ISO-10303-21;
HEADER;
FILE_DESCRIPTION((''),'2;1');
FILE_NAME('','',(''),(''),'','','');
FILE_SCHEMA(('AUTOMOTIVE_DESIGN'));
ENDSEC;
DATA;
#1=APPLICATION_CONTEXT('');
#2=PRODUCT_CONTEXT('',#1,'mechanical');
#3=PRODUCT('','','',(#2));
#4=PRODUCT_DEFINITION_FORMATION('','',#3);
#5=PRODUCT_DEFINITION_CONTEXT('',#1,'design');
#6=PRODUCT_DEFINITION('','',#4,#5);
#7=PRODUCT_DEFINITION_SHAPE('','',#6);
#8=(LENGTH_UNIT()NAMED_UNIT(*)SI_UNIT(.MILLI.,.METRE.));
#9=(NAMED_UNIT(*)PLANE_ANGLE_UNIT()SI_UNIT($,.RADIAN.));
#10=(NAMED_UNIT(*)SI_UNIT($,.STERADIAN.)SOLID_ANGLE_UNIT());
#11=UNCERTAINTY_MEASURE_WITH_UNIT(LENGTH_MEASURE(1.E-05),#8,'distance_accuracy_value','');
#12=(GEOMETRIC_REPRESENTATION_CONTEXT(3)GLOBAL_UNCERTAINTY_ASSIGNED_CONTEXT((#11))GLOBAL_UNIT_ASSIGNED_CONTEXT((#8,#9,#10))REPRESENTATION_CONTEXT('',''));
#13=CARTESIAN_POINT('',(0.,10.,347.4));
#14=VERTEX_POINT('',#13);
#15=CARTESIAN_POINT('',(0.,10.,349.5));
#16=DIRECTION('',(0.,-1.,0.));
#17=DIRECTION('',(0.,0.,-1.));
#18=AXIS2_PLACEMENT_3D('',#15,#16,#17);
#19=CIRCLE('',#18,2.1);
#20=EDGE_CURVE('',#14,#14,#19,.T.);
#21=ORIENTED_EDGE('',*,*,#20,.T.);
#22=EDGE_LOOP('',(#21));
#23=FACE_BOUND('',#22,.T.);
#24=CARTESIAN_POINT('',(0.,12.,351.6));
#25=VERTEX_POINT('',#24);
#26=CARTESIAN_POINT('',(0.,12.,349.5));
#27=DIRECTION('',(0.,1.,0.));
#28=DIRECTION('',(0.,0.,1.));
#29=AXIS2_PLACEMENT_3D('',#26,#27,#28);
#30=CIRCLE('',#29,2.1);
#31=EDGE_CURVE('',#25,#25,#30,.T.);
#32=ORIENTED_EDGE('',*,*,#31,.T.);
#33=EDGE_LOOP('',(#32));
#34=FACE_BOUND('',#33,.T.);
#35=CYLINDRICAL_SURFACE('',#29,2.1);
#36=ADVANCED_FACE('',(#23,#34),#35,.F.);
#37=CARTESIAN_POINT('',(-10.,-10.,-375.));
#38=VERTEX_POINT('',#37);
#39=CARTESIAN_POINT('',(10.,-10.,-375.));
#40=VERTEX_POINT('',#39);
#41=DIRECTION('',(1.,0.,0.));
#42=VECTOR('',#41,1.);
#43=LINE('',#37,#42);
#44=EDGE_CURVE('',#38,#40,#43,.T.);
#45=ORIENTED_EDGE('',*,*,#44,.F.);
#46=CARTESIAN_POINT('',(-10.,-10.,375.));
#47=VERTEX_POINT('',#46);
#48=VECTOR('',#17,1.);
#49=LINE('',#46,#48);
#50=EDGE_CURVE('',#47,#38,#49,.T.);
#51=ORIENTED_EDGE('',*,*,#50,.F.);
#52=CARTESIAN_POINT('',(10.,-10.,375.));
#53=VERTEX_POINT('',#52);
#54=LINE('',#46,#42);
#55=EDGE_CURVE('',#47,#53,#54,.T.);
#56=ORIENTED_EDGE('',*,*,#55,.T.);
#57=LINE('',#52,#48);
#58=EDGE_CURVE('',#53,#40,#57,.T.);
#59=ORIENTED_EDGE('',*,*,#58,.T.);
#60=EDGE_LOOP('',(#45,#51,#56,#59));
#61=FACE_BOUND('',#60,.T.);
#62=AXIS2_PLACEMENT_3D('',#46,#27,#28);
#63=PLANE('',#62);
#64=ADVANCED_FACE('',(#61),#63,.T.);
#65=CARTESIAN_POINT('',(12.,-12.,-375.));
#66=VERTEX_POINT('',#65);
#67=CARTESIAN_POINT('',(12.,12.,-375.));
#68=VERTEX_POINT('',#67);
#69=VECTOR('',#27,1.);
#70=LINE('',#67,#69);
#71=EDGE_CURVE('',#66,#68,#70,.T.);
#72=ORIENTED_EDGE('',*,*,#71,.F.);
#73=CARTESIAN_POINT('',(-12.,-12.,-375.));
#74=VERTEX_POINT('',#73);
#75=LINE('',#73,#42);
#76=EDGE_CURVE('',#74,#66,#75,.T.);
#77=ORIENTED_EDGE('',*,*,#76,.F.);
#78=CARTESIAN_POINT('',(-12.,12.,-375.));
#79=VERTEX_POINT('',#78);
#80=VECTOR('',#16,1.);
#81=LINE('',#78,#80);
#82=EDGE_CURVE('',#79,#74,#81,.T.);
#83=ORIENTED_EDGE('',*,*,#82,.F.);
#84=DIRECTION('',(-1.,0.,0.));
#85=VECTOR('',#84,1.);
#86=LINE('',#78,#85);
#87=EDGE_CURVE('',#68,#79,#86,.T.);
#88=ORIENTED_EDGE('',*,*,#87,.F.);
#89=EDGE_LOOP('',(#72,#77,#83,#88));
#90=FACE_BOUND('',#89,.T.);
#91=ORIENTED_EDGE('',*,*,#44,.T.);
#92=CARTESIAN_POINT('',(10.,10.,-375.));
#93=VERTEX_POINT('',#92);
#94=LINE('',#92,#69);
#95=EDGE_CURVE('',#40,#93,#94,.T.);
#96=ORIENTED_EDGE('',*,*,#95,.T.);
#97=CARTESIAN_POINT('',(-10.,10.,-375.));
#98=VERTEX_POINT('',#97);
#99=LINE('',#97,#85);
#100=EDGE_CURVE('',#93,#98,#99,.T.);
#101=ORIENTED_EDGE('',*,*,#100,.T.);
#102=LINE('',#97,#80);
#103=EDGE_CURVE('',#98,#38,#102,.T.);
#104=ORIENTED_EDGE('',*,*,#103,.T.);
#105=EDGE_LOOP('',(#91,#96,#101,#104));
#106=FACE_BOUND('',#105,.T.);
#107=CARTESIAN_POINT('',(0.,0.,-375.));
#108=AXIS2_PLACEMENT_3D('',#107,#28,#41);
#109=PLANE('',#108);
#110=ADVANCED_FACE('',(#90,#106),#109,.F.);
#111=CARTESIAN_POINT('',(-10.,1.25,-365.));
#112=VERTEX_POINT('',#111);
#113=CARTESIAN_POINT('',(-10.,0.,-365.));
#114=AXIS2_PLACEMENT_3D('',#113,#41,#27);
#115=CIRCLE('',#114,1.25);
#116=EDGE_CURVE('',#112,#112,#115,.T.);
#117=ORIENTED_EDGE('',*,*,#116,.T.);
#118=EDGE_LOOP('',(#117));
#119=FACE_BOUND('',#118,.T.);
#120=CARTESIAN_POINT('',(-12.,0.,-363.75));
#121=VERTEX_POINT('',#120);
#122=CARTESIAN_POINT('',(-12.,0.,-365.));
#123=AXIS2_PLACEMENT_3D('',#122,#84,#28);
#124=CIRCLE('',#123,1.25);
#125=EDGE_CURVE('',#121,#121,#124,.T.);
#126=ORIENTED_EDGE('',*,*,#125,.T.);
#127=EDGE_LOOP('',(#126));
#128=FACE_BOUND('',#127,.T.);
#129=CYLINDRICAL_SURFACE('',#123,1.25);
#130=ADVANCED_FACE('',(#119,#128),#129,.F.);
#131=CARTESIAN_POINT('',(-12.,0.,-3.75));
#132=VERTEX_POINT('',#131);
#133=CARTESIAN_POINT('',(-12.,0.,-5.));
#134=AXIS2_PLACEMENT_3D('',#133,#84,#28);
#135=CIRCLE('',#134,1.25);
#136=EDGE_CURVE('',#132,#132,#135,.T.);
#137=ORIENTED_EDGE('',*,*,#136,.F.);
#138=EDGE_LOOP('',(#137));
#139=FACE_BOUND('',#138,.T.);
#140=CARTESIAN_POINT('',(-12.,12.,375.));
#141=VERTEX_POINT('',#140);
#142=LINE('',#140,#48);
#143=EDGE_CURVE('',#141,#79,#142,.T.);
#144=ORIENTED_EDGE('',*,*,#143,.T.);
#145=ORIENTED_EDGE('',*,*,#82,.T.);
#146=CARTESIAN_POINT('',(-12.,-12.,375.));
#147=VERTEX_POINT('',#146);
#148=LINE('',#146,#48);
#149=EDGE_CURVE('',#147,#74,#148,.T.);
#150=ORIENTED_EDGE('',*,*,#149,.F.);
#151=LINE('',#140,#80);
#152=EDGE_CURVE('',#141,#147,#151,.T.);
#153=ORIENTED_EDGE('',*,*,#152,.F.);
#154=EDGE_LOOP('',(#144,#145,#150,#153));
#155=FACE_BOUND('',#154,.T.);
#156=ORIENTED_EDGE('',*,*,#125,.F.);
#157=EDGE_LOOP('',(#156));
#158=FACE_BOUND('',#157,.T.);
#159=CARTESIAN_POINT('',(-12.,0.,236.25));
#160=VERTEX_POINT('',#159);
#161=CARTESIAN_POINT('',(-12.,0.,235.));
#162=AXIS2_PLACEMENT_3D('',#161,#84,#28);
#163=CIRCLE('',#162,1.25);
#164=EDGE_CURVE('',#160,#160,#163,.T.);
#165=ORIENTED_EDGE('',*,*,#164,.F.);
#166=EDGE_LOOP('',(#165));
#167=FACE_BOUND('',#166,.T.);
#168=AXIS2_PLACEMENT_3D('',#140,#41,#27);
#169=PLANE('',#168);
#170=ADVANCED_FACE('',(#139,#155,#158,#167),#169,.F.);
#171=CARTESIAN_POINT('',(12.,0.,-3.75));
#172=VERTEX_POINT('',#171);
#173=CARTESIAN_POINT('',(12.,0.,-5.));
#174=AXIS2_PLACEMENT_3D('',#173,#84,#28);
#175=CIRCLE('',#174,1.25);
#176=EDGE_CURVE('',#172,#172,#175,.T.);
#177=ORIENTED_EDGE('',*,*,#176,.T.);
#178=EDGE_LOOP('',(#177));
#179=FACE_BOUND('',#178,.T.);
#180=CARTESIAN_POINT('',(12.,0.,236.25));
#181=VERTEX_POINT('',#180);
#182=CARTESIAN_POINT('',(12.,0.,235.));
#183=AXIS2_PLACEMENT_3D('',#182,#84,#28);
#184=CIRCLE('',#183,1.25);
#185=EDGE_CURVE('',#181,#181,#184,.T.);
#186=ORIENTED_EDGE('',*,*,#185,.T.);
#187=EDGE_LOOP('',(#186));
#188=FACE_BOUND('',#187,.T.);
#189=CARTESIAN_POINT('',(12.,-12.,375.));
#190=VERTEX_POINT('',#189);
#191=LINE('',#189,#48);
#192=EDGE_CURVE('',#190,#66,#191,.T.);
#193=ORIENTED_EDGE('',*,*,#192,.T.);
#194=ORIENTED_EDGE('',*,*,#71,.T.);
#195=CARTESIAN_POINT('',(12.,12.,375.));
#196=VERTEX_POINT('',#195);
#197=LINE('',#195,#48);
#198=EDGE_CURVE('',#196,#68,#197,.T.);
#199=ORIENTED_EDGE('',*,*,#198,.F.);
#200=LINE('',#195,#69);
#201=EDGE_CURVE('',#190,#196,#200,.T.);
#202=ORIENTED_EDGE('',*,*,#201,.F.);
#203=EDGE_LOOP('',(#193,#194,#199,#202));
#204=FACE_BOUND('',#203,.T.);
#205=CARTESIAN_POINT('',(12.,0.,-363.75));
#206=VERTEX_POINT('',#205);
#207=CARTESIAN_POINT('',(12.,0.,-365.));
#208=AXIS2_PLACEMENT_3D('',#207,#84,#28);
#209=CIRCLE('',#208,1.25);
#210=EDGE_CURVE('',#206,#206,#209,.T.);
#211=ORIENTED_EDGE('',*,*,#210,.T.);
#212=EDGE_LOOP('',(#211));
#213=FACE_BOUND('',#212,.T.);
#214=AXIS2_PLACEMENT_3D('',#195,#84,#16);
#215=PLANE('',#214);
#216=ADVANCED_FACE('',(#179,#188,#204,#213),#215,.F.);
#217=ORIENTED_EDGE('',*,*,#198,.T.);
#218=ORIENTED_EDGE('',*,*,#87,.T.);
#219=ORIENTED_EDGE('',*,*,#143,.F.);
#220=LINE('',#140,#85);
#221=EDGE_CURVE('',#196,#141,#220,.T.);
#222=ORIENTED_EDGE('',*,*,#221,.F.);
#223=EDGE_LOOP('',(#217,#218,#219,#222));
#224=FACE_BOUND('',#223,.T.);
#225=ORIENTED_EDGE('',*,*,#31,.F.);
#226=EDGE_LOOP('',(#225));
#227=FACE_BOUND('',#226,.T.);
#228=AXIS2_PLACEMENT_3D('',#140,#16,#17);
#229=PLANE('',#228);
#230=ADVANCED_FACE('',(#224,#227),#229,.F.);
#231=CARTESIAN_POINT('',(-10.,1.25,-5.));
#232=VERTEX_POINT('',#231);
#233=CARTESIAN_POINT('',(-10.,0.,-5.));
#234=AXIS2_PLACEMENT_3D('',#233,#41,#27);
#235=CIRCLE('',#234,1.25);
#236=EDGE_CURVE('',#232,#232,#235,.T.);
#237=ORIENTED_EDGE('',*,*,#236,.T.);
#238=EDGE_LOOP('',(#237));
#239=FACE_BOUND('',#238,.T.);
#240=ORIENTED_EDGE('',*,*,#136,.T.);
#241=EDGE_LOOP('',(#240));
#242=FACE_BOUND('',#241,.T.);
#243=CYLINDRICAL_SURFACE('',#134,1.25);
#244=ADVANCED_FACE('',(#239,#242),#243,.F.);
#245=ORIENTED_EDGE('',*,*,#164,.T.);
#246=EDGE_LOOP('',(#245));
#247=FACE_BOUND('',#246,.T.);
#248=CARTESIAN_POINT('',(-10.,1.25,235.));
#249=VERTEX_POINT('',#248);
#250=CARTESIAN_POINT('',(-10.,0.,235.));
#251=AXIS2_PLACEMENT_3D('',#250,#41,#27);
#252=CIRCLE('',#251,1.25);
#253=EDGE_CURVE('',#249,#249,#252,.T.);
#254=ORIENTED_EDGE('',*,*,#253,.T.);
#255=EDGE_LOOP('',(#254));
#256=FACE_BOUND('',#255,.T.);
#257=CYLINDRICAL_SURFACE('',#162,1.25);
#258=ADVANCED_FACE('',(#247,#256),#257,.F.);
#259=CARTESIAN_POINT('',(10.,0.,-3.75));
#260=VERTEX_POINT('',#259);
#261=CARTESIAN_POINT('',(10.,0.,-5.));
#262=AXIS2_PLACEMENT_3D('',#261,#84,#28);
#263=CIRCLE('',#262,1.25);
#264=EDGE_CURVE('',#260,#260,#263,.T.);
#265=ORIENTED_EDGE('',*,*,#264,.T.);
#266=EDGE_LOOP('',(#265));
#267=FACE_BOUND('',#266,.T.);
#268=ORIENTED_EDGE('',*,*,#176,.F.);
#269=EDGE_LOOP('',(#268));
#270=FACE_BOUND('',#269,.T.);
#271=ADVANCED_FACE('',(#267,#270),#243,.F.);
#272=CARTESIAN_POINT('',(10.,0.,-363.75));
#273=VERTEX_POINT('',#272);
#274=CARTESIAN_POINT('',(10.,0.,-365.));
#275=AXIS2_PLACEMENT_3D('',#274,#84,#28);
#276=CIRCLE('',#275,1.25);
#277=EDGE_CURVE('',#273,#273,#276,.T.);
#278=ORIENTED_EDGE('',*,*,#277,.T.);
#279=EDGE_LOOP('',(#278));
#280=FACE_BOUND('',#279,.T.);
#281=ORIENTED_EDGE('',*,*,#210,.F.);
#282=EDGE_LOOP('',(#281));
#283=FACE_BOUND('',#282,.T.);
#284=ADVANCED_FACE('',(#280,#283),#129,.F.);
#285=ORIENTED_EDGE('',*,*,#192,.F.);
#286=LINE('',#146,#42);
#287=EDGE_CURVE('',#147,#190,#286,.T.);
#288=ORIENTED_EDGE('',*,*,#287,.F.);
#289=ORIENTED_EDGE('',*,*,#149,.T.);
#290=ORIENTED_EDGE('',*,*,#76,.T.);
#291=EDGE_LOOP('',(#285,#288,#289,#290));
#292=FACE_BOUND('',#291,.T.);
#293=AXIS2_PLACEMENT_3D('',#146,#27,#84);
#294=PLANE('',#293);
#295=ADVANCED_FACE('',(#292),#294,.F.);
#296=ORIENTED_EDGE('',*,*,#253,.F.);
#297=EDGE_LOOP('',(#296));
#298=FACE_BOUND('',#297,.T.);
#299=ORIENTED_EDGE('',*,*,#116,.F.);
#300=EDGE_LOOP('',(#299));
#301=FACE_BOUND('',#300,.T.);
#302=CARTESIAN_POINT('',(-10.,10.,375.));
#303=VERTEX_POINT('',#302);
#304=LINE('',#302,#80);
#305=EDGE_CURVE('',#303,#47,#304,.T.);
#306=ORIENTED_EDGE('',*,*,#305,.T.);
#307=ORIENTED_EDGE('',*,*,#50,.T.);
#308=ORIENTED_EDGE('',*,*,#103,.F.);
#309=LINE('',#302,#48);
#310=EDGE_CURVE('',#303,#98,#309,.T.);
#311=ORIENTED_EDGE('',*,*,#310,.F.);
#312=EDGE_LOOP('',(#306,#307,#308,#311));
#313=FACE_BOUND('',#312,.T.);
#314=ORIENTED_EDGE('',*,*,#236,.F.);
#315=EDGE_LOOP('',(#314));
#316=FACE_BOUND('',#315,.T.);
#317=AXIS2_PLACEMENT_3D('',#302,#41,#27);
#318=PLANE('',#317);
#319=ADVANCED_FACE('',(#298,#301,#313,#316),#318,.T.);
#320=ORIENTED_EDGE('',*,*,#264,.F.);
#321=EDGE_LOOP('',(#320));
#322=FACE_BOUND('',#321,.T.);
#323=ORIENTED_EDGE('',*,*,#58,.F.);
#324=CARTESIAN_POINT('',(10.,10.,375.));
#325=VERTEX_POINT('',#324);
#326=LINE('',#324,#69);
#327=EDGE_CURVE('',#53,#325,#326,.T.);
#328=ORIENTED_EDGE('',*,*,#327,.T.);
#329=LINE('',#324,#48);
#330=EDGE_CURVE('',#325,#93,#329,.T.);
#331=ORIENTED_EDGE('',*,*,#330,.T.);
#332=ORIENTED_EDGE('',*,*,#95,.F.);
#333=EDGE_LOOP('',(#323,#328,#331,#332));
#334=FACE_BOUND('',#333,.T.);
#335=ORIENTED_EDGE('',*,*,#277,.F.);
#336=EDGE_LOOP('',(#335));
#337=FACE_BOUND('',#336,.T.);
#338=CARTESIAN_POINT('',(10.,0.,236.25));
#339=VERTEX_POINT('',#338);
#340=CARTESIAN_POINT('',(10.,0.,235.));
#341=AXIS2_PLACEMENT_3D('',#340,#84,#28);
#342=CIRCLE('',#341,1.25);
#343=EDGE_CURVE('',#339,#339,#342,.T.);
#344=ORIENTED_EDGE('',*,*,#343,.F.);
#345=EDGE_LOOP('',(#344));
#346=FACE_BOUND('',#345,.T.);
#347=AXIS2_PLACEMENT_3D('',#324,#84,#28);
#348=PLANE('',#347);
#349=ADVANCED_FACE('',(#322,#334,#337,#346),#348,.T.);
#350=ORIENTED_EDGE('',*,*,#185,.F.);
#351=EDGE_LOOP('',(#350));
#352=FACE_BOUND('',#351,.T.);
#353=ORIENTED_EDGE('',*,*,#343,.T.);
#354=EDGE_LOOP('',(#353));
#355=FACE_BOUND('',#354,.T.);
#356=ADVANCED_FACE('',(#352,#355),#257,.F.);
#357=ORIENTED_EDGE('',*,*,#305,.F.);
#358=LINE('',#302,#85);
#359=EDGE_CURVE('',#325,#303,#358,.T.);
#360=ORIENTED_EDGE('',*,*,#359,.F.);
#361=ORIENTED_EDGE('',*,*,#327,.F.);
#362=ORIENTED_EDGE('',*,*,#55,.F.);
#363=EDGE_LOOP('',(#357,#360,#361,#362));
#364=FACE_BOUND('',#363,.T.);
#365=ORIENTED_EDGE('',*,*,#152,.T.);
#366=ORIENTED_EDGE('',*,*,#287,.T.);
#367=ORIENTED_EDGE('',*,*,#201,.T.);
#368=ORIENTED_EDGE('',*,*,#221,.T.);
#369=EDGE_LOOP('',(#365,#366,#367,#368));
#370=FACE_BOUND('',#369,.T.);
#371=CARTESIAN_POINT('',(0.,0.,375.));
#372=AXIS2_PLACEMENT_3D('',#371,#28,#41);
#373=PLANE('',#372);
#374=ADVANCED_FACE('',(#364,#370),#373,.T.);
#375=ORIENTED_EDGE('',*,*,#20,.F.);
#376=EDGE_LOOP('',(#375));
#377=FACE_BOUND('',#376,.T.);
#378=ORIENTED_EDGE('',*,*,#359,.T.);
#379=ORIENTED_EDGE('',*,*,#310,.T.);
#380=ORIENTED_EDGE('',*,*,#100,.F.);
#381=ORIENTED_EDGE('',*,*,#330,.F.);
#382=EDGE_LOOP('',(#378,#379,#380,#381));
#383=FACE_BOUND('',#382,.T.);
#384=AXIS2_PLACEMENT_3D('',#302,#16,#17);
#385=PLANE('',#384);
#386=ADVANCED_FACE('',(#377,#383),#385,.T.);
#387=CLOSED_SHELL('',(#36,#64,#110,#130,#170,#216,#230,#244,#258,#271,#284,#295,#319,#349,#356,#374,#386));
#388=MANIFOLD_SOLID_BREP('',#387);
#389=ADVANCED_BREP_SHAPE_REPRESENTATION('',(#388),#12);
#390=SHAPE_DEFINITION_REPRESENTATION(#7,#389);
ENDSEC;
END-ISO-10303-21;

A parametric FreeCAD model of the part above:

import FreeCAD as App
import Part
import Sketcher
from FreeCAD import Vector
Q = App.Units.Quantity

doc = App.newDocument("Part")
body = doc.addObject("PartDesign::Body", "Body")

# Sketch on XY plane
sketch1 = body.newObject("Sketcher::SketchObject", "Sketch")
sketch1.AttachmentSupport = (doc.getObject("XY_Plane"), [""])
sketch1.MapMode = "FlatFace"
sketch1.addGeometry(Part.LineSegment(Vector(-12, 12, 0), Vector(-12, -12, 0)), False)
sketch1.addGeometry(Part.LineSegment(Vector(-12, -12, 0), Vector(12, -12, 0)), False)
sketch1.addGeometry(Part.LineSegment(Vector(12, -12, 0), Vector(12, 12, 0)), False)
sketch1.addGeometry(Part.LineSegment(Vector(12, 12, 0), Vector(-12, 12, 0)), False)
sketch1.addGeometry(Part.LineSegment(Vector(10, -10, 0), Vector(-10, -10, 0)), False)
sketch1.addGeometry(Part.LineSegment(Vector(-10, -10, 0), Vector(-10, 10, 0)), False)
sketch1.addGeometry(Part.LineSegment(Vector(-10, 10, 0), Vector(10, 10, 0)), False)
sketch1.addGeometry(Part.LineSegment(Vector(10, 10, 0), Vector(10, -10, 0)), False)
sketch1.addConstraint(Sketcher.Constraint("Coincident", 0, 2, 1, 1))
sketch1.addConstraint(Sketcher.Constraint("Coincident", 1, 2, 2, 1))
sketch1.addConstraint(Sketcher.Constraint("Coincident", 2, 2, 3, 1))
sketch1.addConstraint(Sketcher.Constraint("Coincident", 3, 2, 0, 1))
sketch1.addConstraint(Sketcher.Constraint("Coincident", 4, 2, 5, 1))
sketch1.addConstraint(Sketcher.Constraint("Coincident", 5, 2, 6, 1))
sketch1.addConstraint(Sketcher.Constraint("Coincident", 6, 2, 7, 1))
sketch1.addConstraint(Sketcher.Constraint("Coincident", 7, 2, 4, 1))
sketch1.addConstraint(Sketcher.Constraint("Vertical", 0))
sketch1.addConstraint(Sketcher.Constraint("Horizontal", 1))
sketch1.addConstraint(Sketcher.Constraint("Vertical", 2))
sketch1.addConstraint(Sketcher.Constraint("Horizontal", 3))
sketch1.addConstraint(Sketcher.Constraint("Horizontal", 4))
sketch1.addConstraint(Sketcher.Constraint("Vertical", 5))
sketch1.addConstraint(Sketcher.Constraint("Horizontal", 6))
sketch1.addConstraint(Sketcher.Constraint("Vertical", 7))
sketch1.addConstraint(Sketcher.Constraint("Symmetric", 0, 2, 2, 2, -1, 1))
sketch1.addConstraint(Sketcher.Constraint("Symmetric", 4, 2, 6, 2, -1, 1))
sketch1.addConstraint(Sketcher.Constraint("Equal", 3, 0))
sketch1.addConstraint(Sketcher.Constraint("Equal", 6, 5))
sketch1.addConstraint(Sketcher.Constraint("DistanceX", 1, 1, 1, 2, Q("24 mm")))
sketch1.addConstraint(Sketcher.Constraint("DistanceX", 4, 2, 4, 1, Q("20 mm")))
pad1 = body.newObject("PartDesign::Pad", "Pad")
pad1.Profile = sketch1
pad1.Length = 750
pad1.Midplane = True

# Sketch on YZ plane
sketch2 = body.newObject("Sketcher::SketchObject", "Sketch001")
sketch2.AttachmentSupport = (doc.getObject("YZ_Plane"), [""])
sketch2.MapMode = "FlatFace"
sketch2.AttachmentOffset = App.Placement(Vector(0, 0, -12), App.Rotation())
sketch2.addGeometry(Part.Circle(Vector(0, -365, 0), Vector(0, 0, 1), 1.25), False)
sketch2.addGeometry(Part.Circle(Vector(0, -5, 0), Vector(0, 0, 1), 1.25), False)
sketch2.addGeometry(Part.Circle(Vector(0, 235, 0), Vector(0, 0, 1), 1.25), False)
sketch2.addConstraint(Sketcher.Constraint("Equal", 0, 1))
sketch2.addConstraint(Sketcher.Constraint("Equal", 1, 2))
sketch2.addConstraint(Sketcher.Constraint("PointOnObject", 0, 3, -2))
sketch2.addConstraint(Sketcher.Constraint("PointOnObject", 1, 3, -2))
sketch2.addConstraint(Sketcher.Constraint("PointOnObject", 2, 3, -2))
sketch2.addConstraint(Sketcher.Constraint("Diameter", 0, Q("2.5 mm")))
sketch2.addConstraint(Sketcher.Constraint("DistanceY", 0, 3, -1, 1, Q("365 mm")))
sketch2.addConstraint(Sketcher.Constraint("DistanceY", 1, 3, -1, 1, Q("5 mm")))
sketch2.addConstraint(Sketcher.Constraint("DistanceY", -1, 1, 2, 3, Q("235 mm")))
doc.recompute()
hole = body.newObject("PartDesign::Hole", "Hole")
hole.Profile = sketch2
hole.ThreadType = "None"
hole.Diameter = 2.5
hole.DepthType = "ThroughAll"
hole.Reversed = True

# Sketch on XZ plane
sketch3 = body.newObject("Sketcher::SketchObject", "Sketch002")
sketch3.AttachmentSupport = (doc.getObject("XZ_Plane"), [""])
sketch3.MapMode = "FlatFace"
sketch3.AttachmentOffset = App.Placement(Vector(0, 0, -12), App.Rotation())
sketch3.addGeometry(Part.Circle(Vector(0, 349.5, 0), Vector(0, 0, 1), 2.1), False)
sketch3.addConstraint(Sketcher.Constraint("PointOnObject", 0, 3, -2))
sketch3.addConstraint(Sketcher.Constraint("Diameter", 0, Q("4.2 mm")))
sketch3.addConstraint(Sketcher.Constraint("DistanceY", -1, 1, 0, 3, Q("349.5 mm")))
doc.recompute()
hole2 = body.newObject("PartDesign::Hole", "Hole001")
hole2.Profile = sketch3
hole2.ThreadType = "None"
hole2.Diameter = 4.2
hole2.DepthType = "Dimension"
hole2.Depth = 10
hole2.DrillPoint = "Angled"
hole2.DrillPointAngle = 118
hole2.Reversed = True

doc.recompute()
